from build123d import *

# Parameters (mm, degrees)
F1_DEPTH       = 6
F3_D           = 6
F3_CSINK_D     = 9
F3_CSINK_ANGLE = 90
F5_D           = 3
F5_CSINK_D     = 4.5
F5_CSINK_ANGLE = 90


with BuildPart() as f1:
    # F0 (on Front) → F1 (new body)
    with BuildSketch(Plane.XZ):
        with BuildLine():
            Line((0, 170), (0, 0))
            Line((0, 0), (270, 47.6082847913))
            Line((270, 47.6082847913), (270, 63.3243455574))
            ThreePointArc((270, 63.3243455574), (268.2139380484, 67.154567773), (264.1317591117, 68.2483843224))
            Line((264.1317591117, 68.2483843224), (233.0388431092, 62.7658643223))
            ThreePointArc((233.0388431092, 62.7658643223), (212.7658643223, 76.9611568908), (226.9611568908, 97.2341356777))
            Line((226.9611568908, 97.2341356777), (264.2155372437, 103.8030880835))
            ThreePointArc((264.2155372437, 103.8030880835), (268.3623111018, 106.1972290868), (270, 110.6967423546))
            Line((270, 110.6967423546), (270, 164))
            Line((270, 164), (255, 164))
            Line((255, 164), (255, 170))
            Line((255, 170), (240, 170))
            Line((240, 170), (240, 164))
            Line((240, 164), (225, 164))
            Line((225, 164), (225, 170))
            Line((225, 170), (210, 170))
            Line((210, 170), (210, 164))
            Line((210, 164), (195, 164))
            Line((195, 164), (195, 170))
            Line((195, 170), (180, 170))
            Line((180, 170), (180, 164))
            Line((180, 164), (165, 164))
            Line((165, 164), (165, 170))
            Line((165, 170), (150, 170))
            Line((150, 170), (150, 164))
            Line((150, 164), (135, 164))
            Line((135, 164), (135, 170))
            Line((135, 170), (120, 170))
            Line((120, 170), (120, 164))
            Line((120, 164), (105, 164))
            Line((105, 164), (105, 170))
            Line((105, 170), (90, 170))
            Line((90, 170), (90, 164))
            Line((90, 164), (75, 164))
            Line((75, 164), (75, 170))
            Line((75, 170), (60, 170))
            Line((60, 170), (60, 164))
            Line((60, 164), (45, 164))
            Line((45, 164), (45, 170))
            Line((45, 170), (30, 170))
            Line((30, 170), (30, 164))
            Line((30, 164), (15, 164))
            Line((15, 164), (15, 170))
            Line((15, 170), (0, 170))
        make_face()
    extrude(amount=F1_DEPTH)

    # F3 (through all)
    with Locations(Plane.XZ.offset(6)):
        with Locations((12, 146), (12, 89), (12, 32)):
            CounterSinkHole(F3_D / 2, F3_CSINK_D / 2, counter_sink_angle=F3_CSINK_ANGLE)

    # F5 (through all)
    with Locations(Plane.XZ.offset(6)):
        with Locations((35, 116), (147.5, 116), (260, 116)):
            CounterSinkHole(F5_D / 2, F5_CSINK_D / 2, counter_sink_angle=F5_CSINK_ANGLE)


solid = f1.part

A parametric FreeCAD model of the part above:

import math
import FreeCAD as App
import Part
import Sketcher

V = App.Vector
Q = App.Units.Quantity

doc = App.newDocument("Part")
body = doc.addObject("PartDesign::Body", "Body")

# Sketch on XZ plane
sketch1 = body.newObject("Sketcher::SketchObject", "Sketch")
sketch1.AttachmentSupport = (doc.getObject("XZ_Plane"), [""])
sketch1.MapMode = "FlatFace"
sketch1.addGeometry(Part.LineSegment(V(0, 170, 0), V(0, 0, 0)), False)
sketch1.addGeometry(Part.LineSegment(V(0, 0, 0), V(270, 48, 0)), False)
sketch1.addGeometry(Part.LineSegment(V(270, 48, 0), V(270, 63, 0)), False)
sketch1.addGeometry(Part.ArcOfCircle(Part.Circle(V(265, 63, 0), V(0, 0, 1), 5), math.radians(0), math.radians(100)), False)
sketch1.addGeometry(Part.LineSegment(V(264, 68, 0), V(233, 63, 0)), False)
sketch1.addGeometry(Part.ArcOfCircle(Part.Circle(V(230, 80, 0), V(0, 0, 1), 18), math.radians(100), math.radians(280)), False)
sketch1.addGeometry(Part.LineSegment(V(227, 97, 0), V(264, 104, 0)), False)
sketch1.addGeometry(Part.ArcOfCircle(Part.Circle(V(263, 111, 0), V(0, 0, 1), 7), math.radians(-80), math.radians(0)), False)
sketch1.addGeometry(Part.LineSegment(V(270, 111, 0), V(270, 164, 0)), False)
sketch1.addGeometry(Part.LineSegment(V(270, 164, 0), V(255, 164, 0)), False)
sketch1.addGeometry(Part.LineSegment(V(255, 164, 0), V(255, 170, 0)), False)
sketch1.addGeometry(Part.LineSegment(V(255, 170, 0), V(240, 170, 0)), False)
sketch1.addGeometry(Part.LineSegment(V(240, 170, 0), V(240, 164, 0)), False)
sketch1.addGeometry(Part.LineSegment(V(240, 164, 0), V(225, 164, 0)), False)
sketch1.addGeometry(Part.LineSegment(V(225, 164, 0), V(225, 170, 0)), False)
sketch1.addGeometry(Part.LineSegment(V(225, 170, 0), V(210, 170, 0)), False)
sketch1.addGeometry(Part.LineSegment(V(210, 170, 0), V(210, 164, 0)), False)
sketch1.addGeometry(Part.LineSegment(V(210, 164, 0), V(195, 164, 0)), False)
sketch1.addGeometry(Part.LineSegment(V(195, 164, 0), V(195, 170, 0)), False)
sketch1.addGeometry(Part.LineSegment(V(195, 170, 0), V(180, 170, 0)), False)
sketch1.addGeometry(Part.LineSegment(V(180, 170, 0), V(180, 164, 0)), False)
sketch1.addGeometry(Part.LineSegment(V(180, 164, 0), V(165, 164, 0)), False)
sketch1.addGeometry(Part.LineSegment(V(165, 164, 0), V(165, 170, 0)), False)
sketch1.addGeometry(Part.LineSegment(V(165, 170, 0), V(150, 170, 0)), False)
sketch1.addGeometry(Part.LineSegment(V(150, 170, 0), V(150, 164, 0)), False)
sketch1.addGeometry(Part.LineSegment(V(150, 164, 0), V(135, 164, 0)), False)
sketch1.addGeometry(Part.LineSegment(V(135, 164, 0), V(135, 170, 0)), False)
sketch1.addGeometry(Part.LineSegment(V(135, 170, 0), V(120, 170, 0)), False)
sketch1.addGeometry(Part.LineSegment(V(120, 170, 0), V(120, 164, 0)), False)
sketch1.addGeometry(Part.LineSegment(V(120, 164, 0), V(105, 164, 0)), False)
sketch1.addGeometry(Part.LineSegment(V(105, 164, 0), V(105, 170, 0)), False)
sketch1.addGeometry(Part.LineSegment(V(105, 170, 0), V(90, 170, 0)), False)
sketch1.addGeometry(Part.LineSegment(V(90, 170, 0), V(90, 164, 0)), False)
sketch1.addGeometry(Part.LineSegment(V(90, 164, 0), V(75, 164, 0)), False)
sketch1.addGeometry(Part.LineSegment(V(75, 164, 0), V(75, 170, 0)), False)
sketch1.addGeometry(Part.LineSegment(V(75, 170, 0), V(60, 170, 0)), False)
sketch1.addGeometry(Part.LineSegment(V(60, 170, 0), V(60, 164, 0)), False)
sketch1.addGeometry(Part.LineSegment(V(60, 164, 0), V(45, 164, 0)), False)
sketch1.addGeometry(Part.LineSegment(V(45, 164, 0), V(45, 170, 0)), False)
sketch1.addGeometry(Part.LineSegment(V(45, 170, 0), V(30, 170, 0)), False)
sketch1.addGeometry(Part.LineSegment(V(30, 170, 0), V(30, 164, 0)), False)
sketch1.addGeometry(Part.LineSegment(V(30, 164, 0), V(15, 164, 0)), False)
sketch1.addGeometry(Part.LineSegment(V(15, 164, 0), V(15, 170, 0)), False)
sketch1.addGeometry(Part.LineSegment(V(15, 170, 0), V(0, 170, 0)), False)
sketch1.addConstraint(Sketcher.Constraint("Coincident", 0, 2, 1, 1))
sketch1.addConstraint(Sketcher.Constraint("Coincident", 1, 2, 2, 1))
sketch1.addConstraint(Sketcher.Constraint("Tangent", 2, 2, 3, 1))
sketch1.addConstraint(Sketcher.Constraint("Tangent", 3, 2, 4, 1))
sketch1.addConstraint(Sketcher.Constraint("Tangent", 4, 2, 5, 2))
sketch1.addConstraint(Sketcher.Constraint("Tangent", 5, 1, 6, 1))
sketch1.addConstraint(Sketcher.Constraint("Tangent", 6, 2, 7, 1))
sketch1.addConstraint(Sketcher.Constraint("Tangent", 7, 2, 8, 1))
sketch1.addConstraint(Sketcher.Constraint("Coincident", 8, 2, 9, 1))
sketch1.addConstraint(Sketcher.Constraint("Coincident", 9, 2, 10, 1))
sketch1.addConstraint(Sketcher.Constraint("Coincident", 10, 2, 11, 1))
sketch1.addConstraint(Sketcher.Constraint("Coincident", 11, 2, 12, 1))
sketch1.addConstraint(Sketcher.Constraint("Coincident", 12, 2, 13, 1))
sketch1.addConstraint(Sketcher.Constraint("Coincident", 13, 2, 14, 1))
sketch1.addConstraint(Sketcher.Constraint("Coincident", 14, 2, 15, 1))
sketch1.addConstraint(Sketcher.Constraint("Coincident", 15, 2, 16, 1))
sketch1.addConstraint(Sketcher.Constraint("Coincident", 16, 2, 17, 1))
sketch1.addConstraint(Sketcher.Constraint("Coincident", 17, 2, 18, 1))
sketch1.addConstraint(Sketcher.Constraint("Coincident", 18, 2, 19, 1))
sketch1.addConstraint(Sketcher.Constraint("Coincident", 19, 2, 20, 1))
sketch1.addConstraint(Sketcher.Constraint("Coincident", 20, 2, 21, 1))
sketch1.addConstraint(Sketcher.Constraint("Coincident", 21, 2, 22, 1))
sketch1.addConstraint(Sketcher.Constraint("Coincident", 22, 2, 23, 1))
sketch1.addConstraint(Sketcher.Constraint("Coincident", 23, 2, 24, 1))
sketch1.addConstraint(Sketcher.Constraint("Coincident", 24, 2, 25, 1))
sketch1.addConstraint(Sketcher.Constraint("Coincident", 25, 2, 26, 1))
sketch1.addConstraint(Sketcher.Constraint("Coincident", 26, 2, 27, 1))
sketch1.addConstraint(Sketcher.Constraint("Coincident", 27, 2, 28, 1))
sketch1.addConstraint(Sketcher.Constraint("Coincident", 28, 2, 29, 1))
sketch1.addConstraint(Sketcher.Constraint("Coincident", 29, 2, 30, 1))
sketch1.addConstraint(Sketcher.Constraint("Coincident", 30, 2, 31, 1))
sketch1.addConstraint(Sketcher.Constraint("Coincident", 31, 2, 32, 1))
sketch1.addConstraint(Sketcher.Constraint("Coincident", 32, 2, 33, 1))
sketch1.addConstraint(Sketcher.Constraint("Coincident", 33, 2, 34, 1))
sketch1.addConstraint(Sketcher.Constraint("Coincident", 34, 2, 35, 1))
sketch1.addConstraint(Sketcher.Constraint("Coincident", 35, 2, 36, 1))
sketch1.addConstraint(Sketcher.Constraint("Coincident", 36, 2, 37, 1))
sketch1.addConstraint(Sketcher.Constraint("Coincident", 37, 2, 38, 1))
sketch1.addConstraint(Sketcher.Constraint("Coincident", 38, 2, 39, 1))
sketch1.addConstraint(Sketcher.Constraint("Coincident", 39, 2, 40, 1))
sketch1.addConstraint(Sketcher.Constraint("Coincident", 40, 2, 41, 1))
sketch1.addConstraint(Sketcher.Constraint("Coincident", 41, 2, 42, 1))
sketch1.addConstraint(Sketcher.Constraint("Coincident", 42, 2, 43, 1))
sketch1.addConstraint(Sketcher.Constraint("Coincident", 43, 2, 0, 1))
sketch1.addConstraint(Sketcher.Constraint("Vertical", 0))
sketch1.addConstraint(Sketcher.Constraint("Vertical", 2))
sketch1.addConstraint(Sketcher.Constraint("Vertical", 8))
sketch1.addConstraint(Sketcher.Constraint("Horizontal", 9))
sketch1.addConstraint(Sketcher.Constraint("Vertical", 10))
sketch1.addConstraint(Sketcher.Constraint("Horizontal", 11))
sketch1.addConstraint(Sketcher.Constraint("Vertical", 12))
sketch1.addConstraint(Sketcher.Constraint("Horizontal", 13))
sketch1.addConstraint(Sketcher.Constraint("Vertical", 14))
sketch1.addConstraint(Sketcher.Constraint("Horizontal", 15))
sketch1.addConstraint(Sketcher.Constraint("Vertical", 16))
sketch1.addConstraint(Sketcher.Constraint("Horizontal", 17))
sketch1.addConstraint(Sketcher.Constraint("Vertical", 18))
sketch1.addConstraint(Sketcher.Constraint("Horizontal", 19))
sketch1.addConstraint(Sketcher.Constraint("Vertical", 20))
sketch1.addConstraint(Sketcher.Constraint("Horizontal", 21))
sketch1.addConstraint(Sketcher.Constraint("Vertical", 22))
sketch1.addConstraint(Sketcher.Constraint("Horizontal", 23))
sketch1.addConstraint(Sketcher.Constraint("Vertical", 24))
sketch1.addConstraint(Sketcher.Constraint("Horizontal", 25))
sketch1.addConstraint(Sketcher.Constraint("Vertical", 26))
sketch1.addConstraint(Sketcher.Constraint("Horizontal", 27))
sketch1.addConstraint(Sketcher.Constraint("Vertical", 28))
sketch1.addConstraint(Sketcher.Constraint("Horizontal", 29))
sketch1.addConstraint(Sketcher.Constraint("Vertical", 30))
sketch1.addConstraint(Sketcher.Constraint("Horizontal", 31))
sketch1.addConstraint(Sketcher.Constraint("Vertical", 32))
sketch1.addConstraint(Sketcher.Constraint("Horizontal", 33))
sketch1.addConstraint(Sketcher.Constraint("Vertical", 34))
sketch1.addConstraint(Sketcher.Constraint("Horizontal", 35))
sketch1.addConstraint(Sketcher.Constraint("Vertical", 36))
sketch1.addConstraint(Sketcher.Constraint("Horizontal", 37))
sketch1.addConstraint(Sketcher.Constraint("Vertical", 38))
sketch1.addConstraint(Sketcher.Constraint("Horizontal", 39))
sketch1.addConstraint(Sketcher.Constraint("Vertical", 40))
sketch1.addConstraint(Sketcher.Constraint("Horizontal", 41))
sketch1.addConstraint(Sketcher.Constraint("Vertical", 42))
sketch1.addConstraint(Sketcher.Constraint("Horizontal", 43))
sketch1.addConstraint(Sketcher.Constraint("Coincident", 0, 2, -1, 1))
sketch1.addConstraint(Sketcher.Constraint("Parallel", 1, 4))
sketch1.addConstraint(Sketcher.Constraint("Parallel", 4, 6))
sketch1.addConstraint(Sketcher.Constraint("Horizontal", 9, 2, 12, 2))
sketch1.addConstraint(Sketcher.Constraint("Horizontal", 11, 2, 14, 2))
sketch1.addConstraint(Sketcher.Constraint("Horizontal", 13, 2, 16, 2))
sketch1.addConstraint(Sketcher.Constraint("Horizontal", 15, 2, 18, 2))
sketch1.addConstraint(Sketcher.Constraint("Horizontal", 17, 2, 20, 2))
sketch1.addConstraint(Sketcher.Constraint("Horizontal", 19, 2, 22, 2))
sketch1.addConstraint(Sketcher.Constraint("Horizontal", 21, 2, 24, 2))
sketch1.addConstraint(Sketcher.Constraint("Horizontal", 23, 2, 26, 2))
sketch1.addConstraint(Sketcher.Constraint("Horizontal", 25, 2, 28, 2))
sketch1.addConstraint(Sketcher.Constraint("Horizontal", 27, 2, 30, 2))
sketch1.addConstraint(Sketcher.Constraint("Horizontal", 29, 2, 32, 2))
sketch1.addConstraint(Sketcher.Constraint("Horizontal", 31, 2, 34, 2))
sketch1.addConstraint(Sketcher.Constraint("Horizontal", 33, 2, 36, 2))
sketch1.addConstraint(Sketcher.Constraint("Horizontal", 35, 2, 38, 2))
sketch1.addConstraint(Sketcher.Constraint("Horizontal", 37, 2, 40, 2))
sketch1.addConstraint(Sketcher.Constraint("Horizontal", 39, 2, 42, 2))
sketch1.addConstraint(Sketcher.Constraint("Vertical", 2, 2, 7, 2))
sketch1.addConstraint(Sketcher.Constraint("Equal", 9, 11))
sketch1.addConstraint(Sketcher.Constraint("Equal", 11, 13))
sketch1.addConstraint(Sketcher.Constraint("Equal", 13, 15))
sketch1.addConstraint(Sketcher.Constraint("Equal", 15, 17))
sketch1.addConstraint(Sketcher.Constraint("Equal", 17, 19))
sketch1.addConstraint(Sketcher.Constraint("Equal", 19, 21))
sketch1.addConstraint(Sketcher.Constraint("Equal", 21, 23))
sketch1.addConstraint(Sketcher.Constraint("Equal", 23, 25))
sketch1.addConstraint(Sketcher.Constraint("Equal", 25, 27))
sketch1.addConstraint(Sketcher.Constraint("Equal", 27, 29))
sketch1.addConstraint(Sketcher.Constraint("Equal", 29, 31))
sketch1.addConstraint(Sketcher.Constraint("Equal", 31, 33))
sketch1.addConstraint(Sketcher.Constraint("Equal", 33, 35))
sketch1.addConstraint(Sketcher.Constraint("Equal", 35, 37))
sketch1.addConstraint(Sketcher.Constraint("Equal", 37, 39))
sketch1.addConstraint(Sketcher.Constraint("Equal", 39, 41))
sketch1.addConstraint(Sketcher.Constraint("Equal", 41, 43))
sketch1.addConstraint(Sketcher.Constraint("Radius", 3, 5.0))
sketch1.addConstraint(Sketcher.Constraint("Radius", 7, 7.0))
sketch1.addConstraint(Sketcher.Constraint("Radius", 5, 17.5))
sketch1.addConstraint(Sketcher.Constraint("DistanceX", 9, 2, 9, 1, 15.0))
sketch1.addConstraint(Sketcher.Constraint("DistanceY", 0, 2, 0, 1, 170.0))
sketch1.addConstraint(Sketcher.Constraint("DistanceY", 10, 1, 10, 2, 6.0))
sketch1.addConstraint(Sketcher.Constraint("Angle", 1, Q("10 deg")))
sketch1.addConstraint(Sketcher.Constraint("DistanceX", -1, 1, 5, 3, 230.0))
sketch1.addConstraint(Sketcher.Constraint("DistanceY", -1, 1, 5, 3, 80.0))
pad1 = body.newObject("PartDesign::Pad", "Pad")
pad1.Profile = sketch1
pad1.Length = 6

# Sketch on XZ plane
sketch2 = body.newObject("Sketcher::SketchObject", "Sketch001")
sketch2.AttachmentSupport = (doc.getObject("XZ_Plane"), [""])
sketch2.MapMode = "FlatFace"
sketch2.AttachmentOffset = App.Placement(V(0, 0, 6), App.Rotation())
sketch2.addGeometry(Part.Circle(V(12, 146, 0), V(0, 0, 1), 3), False)
sketch2.addGeometry(Part.Circle(V(12, 89, 0), V(0, 0, 1), 3), False)
sketch2.addGeometry(Part.Circle(V(12, 32, 0), V(0, 0, 1), 3), False)
sketch2.addConstraint(Sketcher.Constraint("Equal", 0, 1))
sketch2.addConstraint(Sketcher.Constraint("Equal", 1, 2))
sketch2.addConstraint(Sketcher.Constraint("Vertical", 0, 3, 1, 3))
sketch2.addConstraint(Sketcher.Constraint("Vertical", 1, 3, 2, 3))
sketch2.addConstraint(Sketcher.Constraint("Diameter", 0, 6.0))
sketch2.addConstraint(Sketcher.Constraint("DistanceX", -1, 1, 0, 3, 12.0))
sketch2.addConstraint(Sketcher.Constraint("DistanceY", -1, 1, 0, 3, 146.0))
sketch2.addConstraint(Sketcher.Constraint("DistanceY", -1, 1, 1, 3, 89.0))
sketch2.addConstraint(Sketcher.Constraint("DistanceY", -1, 1, 2, 3, 32.0))
doc.recompute()
hole = body.newObject("PartDesign::Hole", "Hole")
hole.Profile = sketch2
hole.ThreadType = "None"
hole.Diameter = 6
hole.DepthType = "ThroughAll"
hole.HoleCutType = "Countersink"
hole.HoleCutDiameter = 9
hole.HoleCutCountersinkAngle = 90

# Sketch on XZ plane
sketch3 = body.newObject("Sketcher::SketchObject", "Sketch002")
sketch3.AttachmentSupport = (doc.getObject("XZ_Plane"), [""])
sketch3.MapMode = "FlatFace"
sketch3.AttachmentOffset = App.Placement(V(0, 0, 6), App.Rotation())
sketch3.addGeometry(Part.Circle(V(35, 116, 0), V(0, 0, 1), 1.5), False)
sketch3.addGeometry(Part.Circle(V(147.5, 116, 0), V(0, 0, 1), 1.5), False)
sketch3.addGeometry(Part.Circle(V(260, 116, 0), V(0, 0, 1), 1.5), False)
sketch3.addConstraint(Sketcher.Constraint("Equal", 0, 1))
sketch3.addConstraint(Sketcher.Constraint("Equal", 1, 2))
sketch3.addConstraint(Sketcher.Constraint("Horizontal", 0, 3, 1, 3))
sketch3.addConstraint(Sketcher.Constraint("Horizontal", 1, 3, 2, 3))
sketch3.addConstraint(Sketcher.Constraint("Diameter", 0, 3.0))
sketch3.addConstraint(Sketcher.Constraint("DistanceX", -1, 1, 0, 3, 35.0))
sketch3.addConstraint(Sketcher.Constraint("DistanceY", -1, 1, 0, 3, 116.0))
sketch3.addConstraint(Sketcher.Constraint("DistanceX", -1, 1, 2, 3, 260.0))
sketch3.addConstraint(Sketcher.Constraint("DistanceX", -1, 1, 1, 3, 147.5))
doc.recompute()
hole2 = body.newObject("PartDesign::Hole", "Hole001")
hole2.Profile = sketch3
hole2.ThreadType = "None"
hole2.Diameter = 3
hole2.DepthType = "ThroughAll"
hole2.HoleCutType = "Countersink"
hole2.HoleCutDiameter = 4.5
hole2.HoleCutCountersinkAngle = 90

doc.recompute()
